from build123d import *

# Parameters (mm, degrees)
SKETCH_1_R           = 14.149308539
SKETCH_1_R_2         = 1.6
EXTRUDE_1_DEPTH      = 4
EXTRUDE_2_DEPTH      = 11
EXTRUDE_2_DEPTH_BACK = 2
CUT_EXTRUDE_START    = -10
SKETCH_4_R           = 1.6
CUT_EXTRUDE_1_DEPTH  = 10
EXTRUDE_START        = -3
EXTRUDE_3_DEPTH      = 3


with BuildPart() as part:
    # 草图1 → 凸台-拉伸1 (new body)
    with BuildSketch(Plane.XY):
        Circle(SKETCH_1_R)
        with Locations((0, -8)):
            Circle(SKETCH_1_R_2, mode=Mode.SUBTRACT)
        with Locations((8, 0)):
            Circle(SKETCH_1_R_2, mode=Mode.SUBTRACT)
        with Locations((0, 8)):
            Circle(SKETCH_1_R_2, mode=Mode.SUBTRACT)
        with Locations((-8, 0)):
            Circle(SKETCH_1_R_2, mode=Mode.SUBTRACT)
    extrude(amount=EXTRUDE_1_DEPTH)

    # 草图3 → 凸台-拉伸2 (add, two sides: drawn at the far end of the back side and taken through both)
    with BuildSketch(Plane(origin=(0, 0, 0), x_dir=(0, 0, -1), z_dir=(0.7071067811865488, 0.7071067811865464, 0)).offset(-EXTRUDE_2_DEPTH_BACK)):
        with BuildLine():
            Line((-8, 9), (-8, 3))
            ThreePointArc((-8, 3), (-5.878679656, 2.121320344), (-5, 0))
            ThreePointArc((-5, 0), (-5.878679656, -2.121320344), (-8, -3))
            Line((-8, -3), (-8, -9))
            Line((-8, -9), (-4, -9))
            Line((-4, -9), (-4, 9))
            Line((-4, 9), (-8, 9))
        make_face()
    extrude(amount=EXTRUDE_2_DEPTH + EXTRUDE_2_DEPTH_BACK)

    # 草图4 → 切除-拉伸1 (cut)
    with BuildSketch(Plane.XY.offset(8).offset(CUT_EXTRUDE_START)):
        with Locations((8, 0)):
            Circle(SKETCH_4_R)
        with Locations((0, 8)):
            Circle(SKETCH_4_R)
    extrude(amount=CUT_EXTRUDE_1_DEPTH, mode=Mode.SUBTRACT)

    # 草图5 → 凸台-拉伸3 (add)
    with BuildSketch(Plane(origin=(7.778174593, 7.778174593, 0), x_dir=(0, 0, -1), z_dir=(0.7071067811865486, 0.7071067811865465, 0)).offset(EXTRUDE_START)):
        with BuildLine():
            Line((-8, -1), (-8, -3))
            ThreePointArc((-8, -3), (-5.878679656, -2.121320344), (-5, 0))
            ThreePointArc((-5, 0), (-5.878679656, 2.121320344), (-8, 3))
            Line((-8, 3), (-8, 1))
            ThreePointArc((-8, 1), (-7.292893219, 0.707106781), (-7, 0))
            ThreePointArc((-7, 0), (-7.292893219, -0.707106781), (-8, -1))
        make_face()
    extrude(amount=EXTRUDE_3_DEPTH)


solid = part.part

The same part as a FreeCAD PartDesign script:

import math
import FreeCAD as App
import Part
import Sketcher

V = App.Vector

doc = App.newDocument("Part")
body = doc.addObject("PartDesign::Body", "Body")

sketch1 = body.newObject("Sketcher::SketchObject", "Sketch")
sketch1.AttachmentSupport = (doc.getObject("XY_Plane"), [""])
sketch1.MapMode = "FlatFace"
sketch1.addGeometry(Part.Circle(V(0, 0, 0), V(0, 0, 1), 14.1), False)
sketch1.addGeometry(Part.Circle(V(0, -8, 0), V(0, 0, 1), 1.6), False)
sketch1.addGeometry(Part.Circle(V(-8, 0, 0), V(0, 0, 1), 1.6), False)
sketch1.addGeometry(Part.Circle(V(8, 0, 0), V(0, 0, 1), 1.6), False)
sketch1.addGeometry(Part.Circle(V(0, 8, 0), V(0, 0, 1), 1.6), False)
sketch1.addConstraint(Sketcher.Constraint("Coincident", 0, 3, -1, 1))
sketch1.addConstraint(Sketcher.Constraint("Equal", 1, 2))
sketch1.addConstraint(Sketcher.Constraint("Equal", 2, 3))
sketch1.addConstraint(Sketcher.Constraint("Equal", 3, 4))
sketch1.addConstraint(Sketcher.Constraint("Symmetric", 2, 3, 3, 3, -1, 1))
sketch1.addConstraint(Sketcher.Constraint("Symmetric", 1, 3, 4, 3, -1, 1))
sketch1.addConstraint(Sketcher.Constraint("PointOnObject", 1, 3, -2))
sketch1.addConstraint(Sketcher.Constraint("PointOnObject", 2, 3, -1))
sketch1.addConstraint(Sketcher.Constraint("Diameter", 1, 3.2))
sketch1.addConstraint(Sketcher.Constraint("DistanceY", 1, 3, -1, 1, 8.0))
sketch1.addConstraint(Sketcher.Constraint("DistanceX", 2, 3, -1, 1, 8.0))
sketch1.addConstraint(Sketcher.Constraint("Diameter", 0, 28.298617))
pad1 = body.newObject("PartDesign::Pad", "Pad")
pad1.Profile = sketch1
pad1.Length = 4

sketch2 = body.newObject("Sketcher::SketchObject", "Sketch001")
sketch2.Placement = App.Placement(V(0, 0, 0), App.Rotation(V(0, 0, -1), V(-0.707106781, 0.707106781, 0), V(0.707106781, 0.707106781, 0), "ZXY"))
sketch2.addGeometry(Part.LineSegment(V(-8, 9, 0), V(-8, 3, 0)), False)
sketch2.addGeometry(Part.ArcOfCircle(Part.Circle(V(-8, 0, 0), V(0, 0, 1), 3), math.radians(0), math.radians(90)), False)
sketch2.addGeometry(Part.ArcOfCircle(Part.Circle(V(-8, 0, 0), V(0, 0, 1), 3), math.radians(-90), math.radians(0)), False)
sketch2.addGeometry(Part.LineSegment(V(-8, -3, 0), V(-8, -9, 0)), False)
sketch2.addGeometry(Part.LineSegment(V(-8, -9, 0), V(-4, -9, 0)), False)
sketch2.addGeometry(Part.LineSegment(V(-4, -9, 0), V(-4, 9, 0)), False)
sketch2.addGeometry(Part.LineSegment(V(-4, 9, 0), V(-8, 9, 0)), False)
sketch2.addConstraint(Sketcher.Constraint("Coincident", 0, 2, 1, 2))
sketch2.addConstraint(Sketcher.Constraint("Tangent", 1, 1, 2, 2))
sketch2.addConstraint(Sketcher.Constraint("Coincident", 2, 1, 3, 1))
sketch2.addConstraint(Sketcher.Constraint("Coincident", 3, 2, 4, 1))
sketch2.addConstraint(Sketcher.Constraint("Coincident", 4, 2, 5, 1))
sketch2.addConstraint(Sketcher.Constraint("Coincident", 5, 2, 6, 1))
sketch2.addConstraint(Sketcher.Constraint("Coincident", 6, 2, 0, 1))
sketch2.addConstraint(Sketcher.Constraint("Vertical", 0))
sketch2.addConstraint(Sketcher.Constraint("Vertical", 3))
sketch2.addConstraint(Sketcher.Constraint("Horizontal", 4))
sketch2.addConstraint(Sketcher.Constraint("Vertical", 5))
sketch2.addConstraint(Sketcher.Constraint("Horizontal", 6))
sketch2.addConstraint(Sketcher.Constraint("Equal", 1, 2))
sketch2.addConstraint(Sketcher.Constraint("Symmetric", 0, 2, 2, 1, -1))
sketch2.addConstraint(Sketcher.Constraint("PointOnObject", 1, 1, -1))
sketch2.addConstraint(Sketcher.Constraint("Vertical", 2, 3, 0, 2))
sketch2.addConstraint(Sketcher.Constraint("Equal", 0, 3))
sketch2.addConstraint(Sketcher.Constraint("Radius", 1, 3.0))
sketch2.addConstraint(Sketcher.Constraint("DistanceX", 4, 1, 4, 2, 4.0))
sketch2.addConstraint(Sketcher.Constraint("DistanceY", 0, 2, 0, 1, 6.0))
sketch2.addConstraint(Sketcher.Constraint("DistanceX", 1, 3, -1, 1, 8.0))
pad2 = body.newObject("PartDesign::Pad", "Pad001")
pad2.Profile = sketch2
pad2.Type = "TwoLengths"
pad2.Length = 11
pad2.Length2 = 2

sketch3 = body.newObject("Sketcher::SketchObject", "Sketch002")
sketch3.AttachmentSupport = (doc.getObject("XY_Plane"), [""])
sketch3.MapMode = "FlatFace"
sketch3.AttachmentOffset = App.Placement(V(0, 0, -2), App.Rotation())
sketch3.addGeometry(Part.Circle(V(8, 0, 0), V(0, 0, 1), 1.6), False)
sketch3.addGeometry(Part.Circle(V(0, 8, 0), V(0, 0, 1), 1.6), False)
sketch3.addConstraint(Sketcher.Constraint("Equal", 0, 1))
sketch3.addConstraint(Sketcher.Constraint("PointOnObject", 0, 3, -1))
sketch3.addConstraint(Sketcher.Constraint("PointOnObject", 1, 3, -2))
sketch3.addConstraint(Sketcher.Constraint("Diameter", 0, 3.2))
sketch3.addConstraint(Sketcher.Constraint("DistanceX", -1, 1, 0, 3, 8.0))
sketch3.addConstraint(Sketcher.Constraint("DistanceY", -1, 1, 1, 3, 8.0))
pocket1 = body.newObject("PartDesign::Pocket", "Pocket")
pocket1.Profile = sketch3
pocket1.Length = 10
pocket1.Reversed = True

sketch4 = body.newObject("Sketcher::SketchObject", "Sketch003")
sketch4.Placement = App.Placement(V(5.656854, 5.656854, 0), App.Rotation(V(0, 0, -1), V(-0.707106781, 0.707106781, 0), V(0.707106781, 0.707106781, 0), "ZXY"))
sketch4.addGeometry(Part.LineSegment(V(-8, -1, 0), V(-8, -3, 0)), False)
sketch4.addGeometry(Part.ArcOfCircle(Part.Circle(V(-8, 0, 0), V(0, 0, 1), 3), math.radians(-90), math.radians(0)), False)
sketch4.addGeometry(Part.ArcOfCircle(Part.Circle(V(-8, 0, 0), V(0, 0, 1), 3), math.radians(0), math.radians(90)), False)
sketch4.addGeometry(Part.LineSegment(V(-8, 3, 0), V(-8, 1, 0)), False)
sketch4.addGeometry(Part.ArcOfCircle(Part.Circle(V(-8, 0, 0), V(0, 0, 1), 1), math.radians(0), math.radians(90)), False)
sketch4.addGeometry(Part.ArcOfCircle(Part.Circle(V(-8, 0, 0), V(0, 0, 1), 1), math.radians(-90), math.radians(0)), False)
sketch4.addConstraint(Sketcher.Constraint("Coincident", 0, 2, 1, 1))
sketch4.addConstraint(Sketcher.Constraint("Tangent", 1, 2, 2, 1))
sketch4.addConstraint(Sketcher.Constraint("Coincident", 2, 2, 3, 1))
sketch4.addConstraint(Sketcher.Constraint("Coincident", 3, 2, 4, 2))
sketch4.addConstraint(Sketcher.Constraint("Tangent", 4, 1, 5, 2))
sketch4.addConstraint(Sketcher.Constraint("Coincident", 5, 1, 0, 1))
sketch4.addConstraint(Sketcher.Constraint("Vertical", 0))
sketch4.addConstraint(Sketcher.Constraint("Vertical", 3))
sketch4.addConstraint(Sketcher.Constraint("Coincident", 4, 3, 1, 3))
sketch4.addConstraint(Sketcher.Constraint("Equal", 1, 2))
sketch4.addConstraint(Sketcher.Constraint("Equal", 4, 5))
sketch4.addConstraint(Sketcher.Constraint("Symmetric", 0, 2, 2, 2, -1))
sketch4.addConstraint(Sketcher.Constraint("PointOnObject", 1, 2, -1))
sketch4.addConstraint(Sketcher.Constraint("PointOnObject", 4, 1, -1))
sketch4.addConstraint(Sketcher.Constraint("Vertical", 5, 3, 0, 2))
sketch4.addConstraint(Sketcher.Constraint("Radius", 1, 3.0))
sketch4.addConstraint(Sketcher.Constraint("Radius", 4, 1.0))
sketch4.addConstraint(Sketcher.Constraint("DistanceX", 1, 3, -1, 1, 8.0))
pad3 = body.newObject("PartDesign::Pad", "Pad002")
pad3.Profile = sketch4
pad3.Length = 3

doc.recompute()
